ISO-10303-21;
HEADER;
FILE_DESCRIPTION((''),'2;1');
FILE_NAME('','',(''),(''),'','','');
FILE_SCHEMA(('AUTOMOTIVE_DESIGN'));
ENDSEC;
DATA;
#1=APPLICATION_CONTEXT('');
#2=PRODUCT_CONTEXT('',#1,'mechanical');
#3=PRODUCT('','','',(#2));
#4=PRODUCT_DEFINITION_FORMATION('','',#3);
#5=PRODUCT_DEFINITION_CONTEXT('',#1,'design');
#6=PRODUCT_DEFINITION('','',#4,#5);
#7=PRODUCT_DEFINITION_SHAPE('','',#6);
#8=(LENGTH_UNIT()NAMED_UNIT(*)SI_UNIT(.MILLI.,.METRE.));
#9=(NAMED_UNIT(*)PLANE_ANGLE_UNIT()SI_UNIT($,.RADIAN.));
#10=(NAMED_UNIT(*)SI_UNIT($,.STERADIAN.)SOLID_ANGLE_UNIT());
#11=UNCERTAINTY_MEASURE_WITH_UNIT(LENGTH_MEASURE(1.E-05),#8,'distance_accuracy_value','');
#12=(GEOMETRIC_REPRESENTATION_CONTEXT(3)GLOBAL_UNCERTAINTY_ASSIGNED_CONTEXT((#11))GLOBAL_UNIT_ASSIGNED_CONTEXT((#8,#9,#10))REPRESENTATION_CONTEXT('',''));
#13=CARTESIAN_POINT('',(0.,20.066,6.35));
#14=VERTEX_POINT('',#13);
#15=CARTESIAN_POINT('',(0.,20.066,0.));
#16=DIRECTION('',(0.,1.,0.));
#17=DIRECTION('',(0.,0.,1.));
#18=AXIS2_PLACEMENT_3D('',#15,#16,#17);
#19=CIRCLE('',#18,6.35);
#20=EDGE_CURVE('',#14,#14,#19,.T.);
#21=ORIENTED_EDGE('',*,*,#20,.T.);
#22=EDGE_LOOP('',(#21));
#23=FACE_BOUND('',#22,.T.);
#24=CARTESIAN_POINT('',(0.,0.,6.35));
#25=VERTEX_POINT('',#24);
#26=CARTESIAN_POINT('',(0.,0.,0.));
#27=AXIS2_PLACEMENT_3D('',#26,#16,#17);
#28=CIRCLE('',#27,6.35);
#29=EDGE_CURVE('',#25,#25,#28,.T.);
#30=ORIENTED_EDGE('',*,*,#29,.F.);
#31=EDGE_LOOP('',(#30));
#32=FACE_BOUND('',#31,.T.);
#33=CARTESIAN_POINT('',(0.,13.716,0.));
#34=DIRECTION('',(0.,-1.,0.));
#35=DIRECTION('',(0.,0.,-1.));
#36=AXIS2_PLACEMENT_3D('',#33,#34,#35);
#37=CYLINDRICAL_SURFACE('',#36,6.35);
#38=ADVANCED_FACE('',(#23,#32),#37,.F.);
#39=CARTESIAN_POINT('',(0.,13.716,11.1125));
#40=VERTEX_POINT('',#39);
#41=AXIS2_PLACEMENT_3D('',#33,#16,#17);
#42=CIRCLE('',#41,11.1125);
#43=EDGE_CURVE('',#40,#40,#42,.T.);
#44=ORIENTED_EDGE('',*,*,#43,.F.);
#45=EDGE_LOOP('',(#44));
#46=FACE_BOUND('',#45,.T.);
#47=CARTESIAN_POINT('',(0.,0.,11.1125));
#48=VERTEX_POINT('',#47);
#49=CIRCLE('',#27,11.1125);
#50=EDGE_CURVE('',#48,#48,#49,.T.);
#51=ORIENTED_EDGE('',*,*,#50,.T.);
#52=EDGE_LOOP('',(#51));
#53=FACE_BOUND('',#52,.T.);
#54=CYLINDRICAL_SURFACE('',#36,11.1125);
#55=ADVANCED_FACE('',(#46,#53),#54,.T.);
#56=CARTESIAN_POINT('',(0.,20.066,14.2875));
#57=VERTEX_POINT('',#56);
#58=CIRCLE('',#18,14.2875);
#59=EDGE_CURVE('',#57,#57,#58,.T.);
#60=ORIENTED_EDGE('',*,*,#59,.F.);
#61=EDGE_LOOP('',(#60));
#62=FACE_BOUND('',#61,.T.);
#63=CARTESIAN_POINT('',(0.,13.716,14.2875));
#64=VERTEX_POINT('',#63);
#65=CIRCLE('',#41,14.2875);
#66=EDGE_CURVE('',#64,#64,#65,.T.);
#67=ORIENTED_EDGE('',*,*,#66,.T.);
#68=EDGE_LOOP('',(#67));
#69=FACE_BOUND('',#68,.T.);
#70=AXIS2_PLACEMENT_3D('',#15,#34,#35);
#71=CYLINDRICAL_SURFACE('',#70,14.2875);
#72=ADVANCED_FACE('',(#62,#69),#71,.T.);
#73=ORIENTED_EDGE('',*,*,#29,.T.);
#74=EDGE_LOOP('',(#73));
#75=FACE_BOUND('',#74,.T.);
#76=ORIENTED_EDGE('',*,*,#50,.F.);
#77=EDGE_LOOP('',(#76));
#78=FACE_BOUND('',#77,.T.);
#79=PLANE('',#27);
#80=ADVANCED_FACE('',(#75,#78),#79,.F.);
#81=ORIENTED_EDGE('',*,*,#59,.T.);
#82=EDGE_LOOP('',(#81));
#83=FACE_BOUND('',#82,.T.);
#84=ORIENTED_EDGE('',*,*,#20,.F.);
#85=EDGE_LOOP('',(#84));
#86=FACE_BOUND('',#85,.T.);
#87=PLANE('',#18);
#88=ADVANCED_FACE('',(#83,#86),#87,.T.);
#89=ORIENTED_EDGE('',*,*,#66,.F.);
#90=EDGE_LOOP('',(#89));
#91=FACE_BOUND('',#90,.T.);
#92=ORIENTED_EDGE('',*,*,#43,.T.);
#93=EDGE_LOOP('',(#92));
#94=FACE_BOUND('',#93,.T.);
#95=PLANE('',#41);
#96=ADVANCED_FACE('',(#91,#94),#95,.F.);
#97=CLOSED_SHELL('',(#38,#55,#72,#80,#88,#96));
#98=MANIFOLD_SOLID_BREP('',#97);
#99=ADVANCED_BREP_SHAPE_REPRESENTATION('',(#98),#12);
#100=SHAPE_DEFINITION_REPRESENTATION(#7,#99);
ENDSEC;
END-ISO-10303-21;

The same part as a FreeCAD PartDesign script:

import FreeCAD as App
import Part
import Sketcher
Q = App.Units.Quantity

doc = App.newDocument("Part")
body = doc.addObject("PartDesign::Body", "Body")

# Sketch on XZ plane
sketch1 = doc.addObject("Sketcher::SketchObject", "Sketch")
body.addObject(sketch1)
sketch1.AttachmentSupport = (doc.XZ_Plane, [""])
sketch1.MapMode = "FlatFace"
sketch1.addGeometry([
    Part.Circle(App.Vector(0, 0, 0), App.Vector(0, 0, 1), 11.1125),
    Part.Circle(App.Vector(0, 0, 0), App.Vector(0, 0, 1), 6.35),
], False)
sketch1.addConstraint([
    Sketcher.Constraint("Coincident", 0, 3, -1, 1),
    Sketcher.Constraint("Coincident", 1, 3, -1, 1),
    Sketcher.Constraint("Diameter", 1, Q("0.5 in")),
    Sketcher.Constraint("Diameter", 0, Q("0.875 in")),
])
pad1 = doc.addObject("PartDesign::Pad", "Pad")
body.addObject(pad1)
pad1.Profile = sketch1
pad1.Length = Q("0.54 in")
pad1.Reversed = True

# Sketch on XZ plane
sketch2 = doc.addObject("Sketcher::SketchObject", "Sketch001")
body.addObject(sketch2)
sketch2.AttachmentSupport = (doc.XZ_Plane, [""])
sketch2.MapMode = "FlatFace"
sketch2.AttachmentOffset = App.Placement(App.Vector(0, 0, -0.54 * 25.4), App.Rotation())
sketch2.addGeometry([
    Part.Circle(App.Vector(0, 0, 0), App.Vector(0, 0, 1), 14.2875),
    Part.Circle(App.Vector(0, 0, 0), App.Vector(0, 0, 1), 6.35),
], False)
sketch2.addConstraint([
    Sketcher.Constraint("Coincident", 0, 3, -1, 1),
    Sketcher.Constraint("Coincident", 1, 3, -1, 1),
    Sketcher.Constraint("Diameter", 1, Q("0.5 in")),
    Sketcher.Constraint("Diameter", 0, Q("1.125 in")),
])
pad2 = doc.addObject("PartDesign::Pad", "Pad001")
body.addObject(pad2)
pad2.Profile = sketch2
pad2.Length = Q("0.25 in")
pad2.Reversed = True

doc.recompute()
